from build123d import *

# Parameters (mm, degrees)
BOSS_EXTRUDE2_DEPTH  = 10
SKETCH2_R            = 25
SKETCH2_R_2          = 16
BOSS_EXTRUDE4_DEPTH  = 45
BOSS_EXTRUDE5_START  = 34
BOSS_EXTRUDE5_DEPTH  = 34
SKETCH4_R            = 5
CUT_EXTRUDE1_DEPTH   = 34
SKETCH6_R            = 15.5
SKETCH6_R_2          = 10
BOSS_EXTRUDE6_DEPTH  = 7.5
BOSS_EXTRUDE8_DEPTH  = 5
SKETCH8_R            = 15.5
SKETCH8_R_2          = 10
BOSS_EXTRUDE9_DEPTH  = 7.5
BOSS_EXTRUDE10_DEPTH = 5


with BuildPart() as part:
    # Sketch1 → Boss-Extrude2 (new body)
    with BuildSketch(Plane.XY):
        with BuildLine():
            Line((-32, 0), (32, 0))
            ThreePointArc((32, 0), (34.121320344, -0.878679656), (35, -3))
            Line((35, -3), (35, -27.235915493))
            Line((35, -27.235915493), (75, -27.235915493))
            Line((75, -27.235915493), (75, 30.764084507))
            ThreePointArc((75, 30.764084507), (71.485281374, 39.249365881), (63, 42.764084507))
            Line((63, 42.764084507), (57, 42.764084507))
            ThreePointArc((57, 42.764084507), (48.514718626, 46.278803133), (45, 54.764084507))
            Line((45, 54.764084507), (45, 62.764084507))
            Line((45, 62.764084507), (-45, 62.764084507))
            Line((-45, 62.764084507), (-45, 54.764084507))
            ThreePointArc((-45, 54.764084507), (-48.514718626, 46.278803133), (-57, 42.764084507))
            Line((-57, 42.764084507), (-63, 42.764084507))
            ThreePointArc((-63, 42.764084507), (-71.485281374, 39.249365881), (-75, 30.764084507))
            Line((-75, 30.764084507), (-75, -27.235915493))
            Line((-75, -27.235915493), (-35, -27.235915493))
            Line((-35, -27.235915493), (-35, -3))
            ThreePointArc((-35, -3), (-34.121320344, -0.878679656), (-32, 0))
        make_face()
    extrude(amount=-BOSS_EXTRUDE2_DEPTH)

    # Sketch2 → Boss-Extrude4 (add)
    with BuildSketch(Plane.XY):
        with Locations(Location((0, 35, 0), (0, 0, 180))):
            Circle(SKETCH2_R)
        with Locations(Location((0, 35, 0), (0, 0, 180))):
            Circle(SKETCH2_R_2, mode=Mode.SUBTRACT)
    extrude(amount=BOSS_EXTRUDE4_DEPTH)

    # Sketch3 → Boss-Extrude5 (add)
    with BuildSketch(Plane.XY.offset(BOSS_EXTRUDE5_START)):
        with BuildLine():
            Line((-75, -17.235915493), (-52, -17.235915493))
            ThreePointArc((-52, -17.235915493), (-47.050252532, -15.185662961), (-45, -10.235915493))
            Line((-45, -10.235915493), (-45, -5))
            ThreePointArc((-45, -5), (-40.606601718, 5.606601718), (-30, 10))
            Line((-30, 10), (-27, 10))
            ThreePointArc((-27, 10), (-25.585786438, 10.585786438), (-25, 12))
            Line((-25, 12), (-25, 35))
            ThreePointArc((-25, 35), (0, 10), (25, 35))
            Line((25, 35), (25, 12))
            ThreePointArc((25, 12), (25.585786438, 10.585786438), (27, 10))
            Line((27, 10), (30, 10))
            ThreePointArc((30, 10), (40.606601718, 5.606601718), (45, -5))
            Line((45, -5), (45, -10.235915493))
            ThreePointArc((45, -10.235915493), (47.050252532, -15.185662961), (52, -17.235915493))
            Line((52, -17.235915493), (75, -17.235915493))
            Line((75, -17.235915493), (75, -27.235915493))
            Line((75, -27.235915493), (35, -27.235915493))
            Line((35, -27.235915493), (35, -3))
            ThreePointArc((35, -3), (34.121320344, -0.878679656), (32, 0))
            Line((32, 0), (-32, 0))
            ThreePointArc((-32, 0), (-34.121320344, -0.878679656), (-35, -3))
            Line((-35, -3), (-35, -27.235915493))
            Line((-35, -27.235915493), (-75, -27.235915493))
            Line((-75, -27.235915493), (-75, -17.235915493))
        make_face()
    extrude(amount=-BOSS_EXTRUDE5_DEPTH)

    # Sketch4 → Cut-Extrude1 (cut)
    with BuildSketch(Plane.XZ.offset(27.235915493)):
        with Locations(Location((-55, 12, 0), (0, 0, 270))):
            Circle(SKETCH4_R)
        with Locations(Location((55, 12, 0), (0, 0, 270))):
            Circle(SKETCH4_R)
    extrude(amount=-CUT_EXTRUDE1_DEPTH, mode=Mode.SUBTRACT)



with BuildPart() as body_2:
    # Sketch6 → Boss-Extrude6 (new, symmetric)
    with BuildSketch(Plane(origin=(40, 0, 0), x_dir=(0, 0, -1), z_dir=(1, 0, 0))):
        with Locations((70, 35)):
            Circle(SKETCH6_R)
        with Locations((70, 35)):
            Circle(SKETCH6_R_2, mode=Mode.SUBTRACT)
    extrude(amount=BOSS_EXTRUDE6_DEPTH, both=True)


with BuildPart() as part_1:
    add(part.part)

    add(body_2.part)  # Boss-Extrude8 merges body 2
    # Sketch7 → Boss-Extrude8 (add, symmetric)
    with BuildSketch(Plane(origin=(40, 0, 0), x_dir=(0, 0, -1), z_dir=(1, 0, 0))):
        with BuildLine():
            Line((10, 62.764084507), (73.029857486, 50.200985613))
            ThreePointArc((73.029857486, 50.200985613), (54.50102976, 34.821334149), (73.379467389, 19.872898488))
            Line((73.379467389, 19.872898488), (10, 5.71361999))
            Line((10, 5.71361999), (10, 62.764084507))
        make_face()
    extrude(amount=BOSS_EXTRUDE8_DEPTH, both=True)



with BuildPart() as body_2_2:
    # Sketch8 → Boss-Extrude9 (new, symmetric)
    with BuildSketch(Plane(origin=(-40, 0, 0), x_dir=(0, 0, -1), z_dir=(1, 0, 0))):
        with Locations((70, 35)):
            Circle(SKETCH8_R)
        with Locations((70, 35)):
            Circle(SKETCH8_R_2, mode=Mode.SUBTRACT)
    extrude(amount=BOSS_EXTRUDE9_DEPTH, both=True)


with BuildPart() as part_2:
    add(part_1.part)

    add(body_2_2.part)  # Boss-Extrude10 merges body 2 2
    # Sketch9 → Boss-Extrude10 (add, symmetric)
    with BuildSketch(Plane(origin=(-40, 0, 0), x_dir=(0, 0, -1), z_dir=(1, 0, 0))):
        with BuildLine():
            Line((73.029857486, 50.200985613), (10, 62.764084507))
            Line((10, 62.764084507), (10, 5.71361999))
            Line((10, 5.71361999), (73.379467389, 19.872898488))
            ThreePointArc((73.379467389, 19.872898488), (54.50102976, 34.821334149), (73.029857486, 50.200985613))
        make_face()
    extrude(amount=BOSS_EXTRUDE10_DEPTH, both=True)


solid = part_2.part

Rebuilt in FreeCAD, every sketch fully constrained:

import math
import FreeCAD as App
import Part
import Sketcher

V = App.Vector

doc = App.newDocument("Part")
body = doc.addObject("PartDesign::Body", "Body")

sketch1 = body.newObject("Sketcher::SketchObject", "Sketch")
sketch1.AttachmentSupport = (doc.getObject("XY_Plane"), [""])
sketch1.MapMode = "FlatFace"
sketch1.addGeometry([
    Part.LineSegment(V(-32, 0, 0), V(32, 0, 0)),
    Part.ArcOfCircle(Part.Circle(V(32, -3, 0), V(0, 0, 1), 3), math.radians(0), math.radians(90)),
    Part.LineSegment(V(35, -3, 0), V(35, -27.2, 0)),
    Part.LineSegment(V(35, -27.2, 0), V(75, -27.2, 0)),
    Part.LineSegment(V(75, -27.2, 0), V(75, 30.8, 0)),
    Part.ArcOfCircle(Part.Circle(V(63, 30.8, 0), V(0, 0, 1), 12), math.radians(0), math.radians(90)),
    Part.LineSegment(V(63, 42.8, 0), V(57, 42.8, 0)),
    Part.ArcOfCircle(Part.Circle(V(57, 54.8, 0), V(0, 0, 1), 12), math.radians(-180), math.radians(-90)),
    Part.LineSegment(V(45, 54.8, 0), V(45, 62.8, 0)),
    Part.LineSegment(V(45, 62.8, 0), V(-45, 62.8, 0)),
    Part.LineSegment(V(-45, 62.8, 0), V(-45, 54.8, 0)),
    Part.ArcOfCircle(Part.Circle(V(-57, 54.8, 0), V(0, 0, 1), 12), math.radians(-90), math.radians(0)),
    Part.LineSegment(V(-57, 42.8, 0), V(-63, 42.8, 0)),
    Part.ArcOfCircle(Part.Circle(V(-63, 30.8, 0), V(0, 0, 1), 12), math.radians(90), math.radians(180)),
    Part.LineSegment(V(-75, 30.8, 0), V(-75, -27.2, 0)),
    Part.LineSegment(V(-75, -27.2, 0), V(-35, -27.2, 0)),
    Part.LineSegment(V(-35, -27.2, 0), V(-35, -3, 0)),
    Part.ArcOfCircle(Part.Circle(V(-32, -3, 0), V(0, 0, 1), 3), math.radians(90), math.radians(180)),
], False)
sketch1.addConstraint([
    Sketcher.Constraint("Tangent", 0, 2, 1, 2),
    Sketcher.Constraint("Tangent", 1, 1, 2, 1),
    Sketcher.Constraint("Coincident", 2, 2, 3, 1),
    Sketcher.Constraint("Coincident", 3, 2, 4, 1),
    Sketcher.Constraint("Tangent", 4, 2, 5, 1),
    Sketcher.Constraint("Tangent", 5, 2, 6, 1),
    Sketcher.Constraint("Tangent", 6, 2, 7, 2),
    Sketcher.Constraint("Tangent", 7, 1, 8, 1),
    Sketcher.Constraint("Coincident", 8, 2, 9, 1),
    Sketcher.Constraint("Coincident", 9, 2, 10, 1),
    Sketcher.Constraint("Tangent", 10, 2, 11, 2),
    Sketcher.Constraint("Tangent", 11, 1, 12, 1),
    Sketcher.Constraint("Tangent", 12, 2, 13, 1),
    Sketcher.Constraint("Tangent", 13, 2, 14, 1),
    Sketcher.Constraint("Coincident", 14, 2, 15, 1),
    Sketcher.Constraint("Coincident", 15, 2, 16, 1),
    Sketcher.Constraint("Tangent", 16, 2, 17, 2),
    Sketcher.Constraint("Tangent", 17, 1, 0, 1),
    Sketcher.Constraint("Horizontal", 0),
    Sketcher.Constraint("Vertical", 2),
    Sketcher.Constraint("Horizontal", 3),
    Sketcher.Constraint("Vertical", 4),
    Sketcher.Constraint("Horizontal", 6),
    Sketcher.Constraint("Vertical", 8),
    Sketcher.Constraint("Horizontal", 9),
    Sketcher.Constraint("Vertical", 10),
    Sketcher.Constraint("Horizontal", 12),
    Sketcher.Constraint("Vertical", 14),
    Sketcher.Constraint("Horizontal", 15),
    Sketcher.Constraint("Vertical", 16),
    Sketcher.Constraint("Equal", 5, 7),
    Sketcher.Constraint("Equal", 7, 11),
    Sketcher.Constraint("Equal", 11, 13),
    Sketcher.Constraint("Equal", 1, 17),
    Sketcher.Constraint("Symmetric", 0, 2, 17, 1, -1, 1),
    Sketcher.Constraint("Symmetric", 7, 3, 11, 3, -2),
    Sketcher.Constraint("Symmetric", 3, 2, 14, 2, -2),
    Sketcher.Constraint("Radius", 1, 3.0),
    Sketcher.Constraint("Radius", 5, 12.0),
    Sketcher.Constraint("DistanceX", 0, 1, 0, 2, 64.0),
    Sketcher.Constraint("DistanceX", 3, 1, 3, 2, 40.0),
    Sketcher.Constraint("DistanceX", 6, 2, 6, 1, 6.0),
    Sketcher.Constraint("DistanceY", 4, 1, 4, 2, 58.0),
    Sketcher.Constraint("DistanceY", 8, 1, 8, 2, 8.0),
    Sketcher.Constraint("DistanceY", 2, 2, 2, 1, 24.235915),
])
pad1 = body.newObject("PartDesign::Pad", "Pad")
pad1.Profile = sketch1
pad1.Length = 10
pad1.Reversed = True

sketch2 = body.newObject("Sketcher::SketchObject", "Sketch001")
sketch2.AttachmentSupport = (doc.getObject("XY_Plane"), [""])
sketch2.MapMode = "FlatFace"
sketch2.addGeometry([
    Part.Circle(V(0, 35, 0), V(0, 0, 1), 25),
    Part.Circle(V(0, 35, 0), V(0, 0, 1), 16),
], False)
sketch2.addConstraint([
    Sketcher.Constraint("Coincident", 1, 3, 0, 3),
    Sketcher.Constraint("PointOnObject", 0, 3, -2),
    Sketcher.Constraint("Diameter", 0, 50.0),
    Sketcher.Constraint("Diameter", 1, 32.0),
    Sketcher.Constraint("DistanceY", -1, 1, 0, 3, 35.0),
])
pad2 = body.newObject("PartDesign::Pad", "Pad001")
pad2.Profile = sketch2
pad2.Length = 45

sketch3 = body.newObject("Sketcher::SketchObject", "Sketch002")
sketch3.AttachmentSupport = (doc.getObject("XY_Plane"), [""])
sketch3.MapMode = "FlatFace"
sketch3.AttachmentOffset = App.Placement(V(0, 0, 34), App.Rotation())
sketch3.addGeometry([
    Part.LineSegment(V(-52, -17.2, 0), V(-75, -17.2, 0)),
    Part.LineSegment(V(-75, -17.2, 0), V(-75, -27.2, 0)),
    Part.LineSegment(V(-75, -27.2, 0), V(-35, -27.2, 0)),
    Part.LineSegment(V(-35, -27.2, 0), V(-35, -3, 0)),
    Part.ArcOfCircle(Part.Circle(V(-32, -3, 0), V(0, 0, 1), 3), math.radians(90), math.radians(180)),
    Part.LineSegment(V(-32, 0, 0), V(32, 0, 0)),
    Part.ArcOfCircle(Part.Circle(V(32, -3, 0), V(0, 0, 1), 3), math.radians(0), math.radians(90)),
    Part.LineSegment(V(35, -3, 0), V(35, -27.2, 0)),
    Part.LineSegment(V(35, -27.2, 0), V(75, -27.2, 0)),
    Part.LineSegment(V(75, -27.2, 0), V(75, -17.2, 0)),
    Part.LineSegment(V(75, -17.2, 0), V(52, -17.2, 0)),
    Part.ArcOfCircle(Part.Circle(V(52, -10.2, 0), V(0, 0, 1), 7), math.radians(-180), math.radians(-90)),
    Part.LineSegment(V(45, -10.2, 0), V(45, -5, 0)),
    Part.ArcOfCircle(Part.Circle(V(30, -5, 0), V(0, 0, 1), 15), math.radians(0), math.radians(90)),
    Part.LineSegment(V(30, 10, 0), V(27, 10, 0)),
    Part.ArcOfCircle(Part.Circle(V(27, 12, 0), V(0, 0, 1), 2), math.radians(-180), math.radians(-90)),
    Part.LineSegment(V(25, 12, 0), V(25, 35, 0)),
    Part.ArcOfCircle(Part.Circle(V(0, 35, 0), V(0, 0, 1), 25), math.radians(180), math.radians(360)),
    Part.LineSegment(V(-25, 35, 0), V(-25, 12, 0)),
    Part.ArcOfCircle(Part.Circle(V(-27, 12, 0), V(0, 0, 1), 2), math.radians(-90), math.radians(0)),
    Part.LineSegment(V(-27, 10, 0), V(-30, 10, 0)),
    Part.ArcOfCircle(Part.Circle(V(-30, -5, 0), V(0, 0, 1), 15), math.radians(90), math.radians(180)),
    Part.LineSegment(V(-45, -5, 0), V(-45, -10.2, 0)),
    Part.ArcOfCircle(Part.Circle(V(-52, -10.2, 0), V(0, 0, 1), 7), math.radians(-90), math.radians(0)),
], False)
sketch3.addConstraint([
    Sketcher.Constraint("Coincident", 0, 2, 1, 1),
    Sketcher.Constraint("Coincident", 1, 2, 2, 1),
    Sketcher.Constraint("Coincident", 2, 2, 3, 1),
    Sketcher.Constraint("Tangent", 3, 2, 4, 2),
    Sketcher.Constraint("Tangent", 4, 1, 5, 1),
    Sketcher.Constraint("Tangent", 5, 2, 6, 2),
    Sketcher.Constraint("Tangent", 6, 1, 7, 1),
    Sketcher.Constraint("Coincident", 7, 2, 8, 1),
    Sketcher.Constraint("Coincident", 8, 2, 9, 1),
    Sketcher.Constraint("Coincident", 9, 2, 10, 1),
    Sketcher.Constraint("Tangent", 10, 2, 11, 2),
    Sketcher.Constraint("Tangent", 11, 1, 12, 1),
    Sketcher.Constraint("Tangent", 12, 2, 13, 1),
    Sketcher.Constraint("Tangent", 13, 2, 14, 1),
    Sketcher.Constraint("Tangent", 14, 2, 15, 2),
    Sketcher.Constraint("Tangent", 15, 1, 16, 1),
    Sketcher.Constraint("Tangent", 16, 2, 17, 2),
    Sketcher.Constraint("Tangent", 17, 1, 18, 1),
    Sketcher.Constraint("Tangent", 18, 2, 19, 2),
    Sketcher.Constraint("Tangent", 19, 1, 20, 1),
    Sketcher.Constraint("Tangent", 20, 2, 21, 1),
    Sketcher.Constraint("Tangent", 21, 2, 22, 1),
    Sketcher.Constraint("Tangent", 22, 2, 23, 2),
    Sketcher.Constraint("Tangent", 23, 1, 0, 1),
    Sketcher.Constraint("Horizontal", 0),
    Sketcher.Constraint("Vertical", 1),
    Sketcher.Constraint("Horizontal", 2),
    Sketcher.Constraint("Vertical", 3),
    Sketcher.Constraint("Horizontal", 5),
    Sketcher.Constraint("Vertical", 7),
    Sketcher.Constraint("Horizontal", 8),
    Sketcher.Constraint("Vertical", 9),
    Sketcher.Constraint("Horizontal", 10),
    Sketcher.Constraint("Vertical", 12),
    Sketcher.Constraint("Horizontal", 14),
    Sketcher.Constraint("Vertical", 16),
    Sketcher.Constraint("Vertical", 18),
    Sketcher.Constraint("Horizontal", 20),
    Sketcher.Constraint("Vertical", 22),
    Sketcher.Constraint("Equal", 4, 6),
    Sketcher.Constraint("Equal", 15, 19),
    Sketcher.Constraint("Equal", 13, 21),
    Sketcher.Constraint("Equal", 11, 23),
    Sketcher.Constraint("Symmetric", 4, 1, 5, 2, -1, 1),
    Sketcher.Constraint("Symmetric", 15, 3, 19, 3, -2),
    Sketcher.Constraint("Symmetric", 11, 3, 23, 3, -2),
    Sketcher.Constraint("Symmetric", 1, 2, 8, 2, -2),
    Sketcher.Constraint("Equal", 10, 16),
    Sketcher.Constraint("Radius", 4, 3.0),
    Sketcher.Constraint("Radius", 11, 7.0),
    Sketcher.Constraint("Radius", 13, 15.0),
    Sketcher.Constraint("Radius", 15, 2.0),
    Sketcher.Constraint("Radius", 17, 25.0),
    Sketcher.Constraint("DistanceX", 0, 2, 0, 1, 23.0),
    Sketcher.Constraint("DistanceX", 2, 1, 2, 2, 40.0),
    Sketcher.Constraint("DistanceX", 5, 1, 5, 2, 64.0),
    Sketcher.Constraint("DistanceY", 1, 2, 1, 1, 10.0),
    Sketcher.Constraint("DistanceY", 13, 3, -1, 1, 5.0),
    Sketcher.Constraint("DistanceY", 3, 1, 3, 2, 24.235915),
])
pad3 = body.newObject("PartDesign::Pad", "Pad002")
pad3.Profile = sketch3
pad3.Length = 34
pad3.Reversed = True

sketch4 = body.newObject("Sketcher::SketchObject", "Sketch003")
sketch4.AttachmentSupport = (doc.getObject("XZ_Plane"), [""])
sketch4.MapMode = "FlatFace"
sketch4.AttachmentOffset = App.Placement(V(0, 0, 27.235915), App.Rotation())
sketch4.addGeometry([
    Part.Circle(V(-55, 12, 0), V(0, 0, 1), 5),
    Part.Circle(V(55, 12, 0), V(0, 0, 1), 5),
], False)
sketch4.addConstraint([
    Sketcher.Constraint("Equal", 0, 1),
    Sketcher.Constraint("Symmetric", 0, 3, 1, 3, -2),
    Sketcher.Constraint("Diameter", 0, 10.0),
    Sketcher.Constraint("DistanceX", 0, 3, -1, 1, 55.0),
    Sketcher.Constraint("DistanceY", -1, 1, 0, 3, 12.0),
])
pocket1 = body.newObject("PartDesign::Pocket", "Pocket")
pocket1.Profile = sketch4
pocket1.Length = 34
body2 = doc.addObject("PartDesign::Body", "Body001")

sketch5 = body2.newObject("Sketcher::SketchObject", "Sketch004")
sketch5.AttachmentSupport = (doc.getObject("YZ_Plane001"), [""])
sketch5.MapMode = "FlatFace"
sketch5.AttachmentOffset = App.Placement(V(0, 0, 40), App.Rotation())
sketch5.addGeometry([
    Part.Circle(V(35, -70, 0), V(0, 0, 1), 16),
    Part.Circle(V(35, -70, 0), V(0, 0, 1), 10),
], False)
sketch5.addConstraint([
    Sketcher.Constraint("Coincident", 1, 3, 0, 3),
    Sketcher.Constraint("Diameter", 0, 31.0),
    Sketcher.Constraint("Diameter", 1, 20.0),
    Sketcher.Constraint("DistanceX", -1, 1, 0, 3, 35.0),
    Sketcher.Constraint("DistanceY", 0, 3, -1, 1, 70.0),
])
pad4 = body2.newObject("PartDesign::Pad", "Pad003")
pad4.Profile = sketch5
pad4.Length = 15
pad4.Midplane = True
body.AllowCompound = True
doc.recompute()

boolean = body.newObject("PartDesign::Boolean", "Boolean")
boolean.Type = "Fuse"
boolean.addObjects([body2])

sketch6 = body.newObject("Sketcher::SketchObject", "Sketch005")
sketch6.AttachmentSupport = (doc.getObject("YZ_Plane"), [""])
sketch6.MapMode = "FlatFace"
sketch6.AttachmentOffset = App.Placement(V(0, 0, 40), App.Rotation())
sketch6.addGeometry([
    Part.LineSegment(V(50, -73, 0), V(63, -10, 0)),
    Part.LineSegment(V(63, -10, 0), V(6, -10, 0)),
    Part.LineSegment(V(6, -10, 0), V(20, -73, 0)),
    Part.ArcOfCircle(Part.Circle(V(35, -70, 0), V(0, 0, 1), 16), math.radians(-11), math.radians(193)),
], False)
sketch6.addConstraint([
    Sketcher.Constraint("Coincident", 0, 2, 1, 1),
    Sketcher.Constraint("Coincident", 1, 2, 2, 1),
    Sketcher.Constraint("Tangent", 2, 2, 3, 2),
    Sketcher.Constraint("Tangent", 3, 1, 0, 1),
    Sketcher.Constraint("Horizontal", 1),
    Sketcher.Constraint("Radius", 3, 15.5),
    Sketcher.Constraint("DistanceX", -1, 1, 3, 3, 35.0),
    Sketcher.Constraint("DistanceY", 3, 3, -1, 1, 70.0),
    Sketcher.Constraint("DistanceY", 0, 2, -1, 1, 10.0),
    Sketcher.Constraint("Distance", 0, 64.2697),
    Sketcher.Constraint("DistanceX", -1, 1, 2, 2, 19.872898),
])
pad5 = body.newObject("PartDesign::Pad", "Pad004")
pad5.Profile = sketch6
pad5.Length = 10
pad5.Midplane = True
body3 = doc.addObject("PartDesign::Body", "Body002")

sketch7 = body3.newObject("Sketcher::SketchObject", "Sketch006")
sketch7.AttachmentSupport = (doc.getObject("YZ_Plane002"), [""])
sketch7.MapMode = "FlatFace"
sketch7.AttachmentOffset = App.Placement(V(0, 0, -40), App.Rotation())
sketch7.addGeometry([
    Part.Circle(V(35, -70, 0), V(0, 0, 1), 16),
    Part.Circle(V(35, -70, 0), V(0, 0, 1), 10),
], False)
sketch7.addConstraint([
    Sketcher.Constraint("Coincident", 1, 3, 0, 3),
    Sketcher.Constraint("Diameter", 0, 31.0),
    Sketcher.Constraint("Diameter", 1, 20.0),
    Sketcher.Constraint("DistanceX", -1, 1, 0, 3, 35.0),
    Sketcher.Constraint("DistanceY", 0, 3, -1, 1, 70.0),
])
pad6 = body3.newObject("PartDesign::Pad", "Pad005")
pad6.Profile = sketch7
pad6.Length = 15
pad6.Midplane = True
body.AllowCompound = True
doc.recompute()

boolean2 = body.newObject("PartDesign::Boolean", "Boolean001")
boolean2.Type = "Fuse"
boolean2.addObjects([body3])

sketch8 = body.newObject("Sketcher::SketchObject", "Sketch007")
sketch8.AttachmentSupport = (doc.getObject("YZ_Plane"), [""])
sketch8.MapMode = "FlatFace"
sketch8.AttachmentOffset = App.Placement(V(0, 0, -40), App.Rotation())
sketch8.addGeometry([
    Part.LineSegment(V(50, -73, 0), V(63, -10, 0)),
    Part.LineSegment(V(63, -10, 0), V(6, -10, 0)),
    Part.LineSegment(V(6, -10, 0), V(20, -73, 0)),
    Part.ArcOfCircle(Part.Circle(V(35, -70, 0), V(0, 0, 1), 16), math.radians(-11), math.radians(193)),
], False)
sketch8.addConstraint([
    Sketcher.Constraint("Coincident", 0, 2, 1, 1),
    Sketcher.Constraint("Coincident", 1, 2, 2, 1),
    Sketcher.Constraint("Tangent", 2, 2, 3, 2),
    Sketcher.Constraint("Tangent", 3, 1, 0, 1),
    Sketcher.Constraint("Horizontal", 1),
    Sketcher.Constraint("Radius", 3, 15.5),
    Sketcher.Constraint("DistanceX", -1, 1, 3, 3, 35.0),
    Sketcher.Constraint("DistanceY", 3, 3, -1, 1, 70.0),
    Sketcher.Constraint("DistanceY", 0, 2, -1, 1, 10.0),
    Sketcher.Constraint("Distance", 0, 64.2697),
    Sketcher.Constraint("DistanceX", -1, 1, 2, 2, 19.872898),
])
pad7 = body.newObject("PartDesign::Pad", "Pad006")
pad7.Profile = sketch8
pad7.Length = 10
pad7.Midplane = True

doc.recompute()
